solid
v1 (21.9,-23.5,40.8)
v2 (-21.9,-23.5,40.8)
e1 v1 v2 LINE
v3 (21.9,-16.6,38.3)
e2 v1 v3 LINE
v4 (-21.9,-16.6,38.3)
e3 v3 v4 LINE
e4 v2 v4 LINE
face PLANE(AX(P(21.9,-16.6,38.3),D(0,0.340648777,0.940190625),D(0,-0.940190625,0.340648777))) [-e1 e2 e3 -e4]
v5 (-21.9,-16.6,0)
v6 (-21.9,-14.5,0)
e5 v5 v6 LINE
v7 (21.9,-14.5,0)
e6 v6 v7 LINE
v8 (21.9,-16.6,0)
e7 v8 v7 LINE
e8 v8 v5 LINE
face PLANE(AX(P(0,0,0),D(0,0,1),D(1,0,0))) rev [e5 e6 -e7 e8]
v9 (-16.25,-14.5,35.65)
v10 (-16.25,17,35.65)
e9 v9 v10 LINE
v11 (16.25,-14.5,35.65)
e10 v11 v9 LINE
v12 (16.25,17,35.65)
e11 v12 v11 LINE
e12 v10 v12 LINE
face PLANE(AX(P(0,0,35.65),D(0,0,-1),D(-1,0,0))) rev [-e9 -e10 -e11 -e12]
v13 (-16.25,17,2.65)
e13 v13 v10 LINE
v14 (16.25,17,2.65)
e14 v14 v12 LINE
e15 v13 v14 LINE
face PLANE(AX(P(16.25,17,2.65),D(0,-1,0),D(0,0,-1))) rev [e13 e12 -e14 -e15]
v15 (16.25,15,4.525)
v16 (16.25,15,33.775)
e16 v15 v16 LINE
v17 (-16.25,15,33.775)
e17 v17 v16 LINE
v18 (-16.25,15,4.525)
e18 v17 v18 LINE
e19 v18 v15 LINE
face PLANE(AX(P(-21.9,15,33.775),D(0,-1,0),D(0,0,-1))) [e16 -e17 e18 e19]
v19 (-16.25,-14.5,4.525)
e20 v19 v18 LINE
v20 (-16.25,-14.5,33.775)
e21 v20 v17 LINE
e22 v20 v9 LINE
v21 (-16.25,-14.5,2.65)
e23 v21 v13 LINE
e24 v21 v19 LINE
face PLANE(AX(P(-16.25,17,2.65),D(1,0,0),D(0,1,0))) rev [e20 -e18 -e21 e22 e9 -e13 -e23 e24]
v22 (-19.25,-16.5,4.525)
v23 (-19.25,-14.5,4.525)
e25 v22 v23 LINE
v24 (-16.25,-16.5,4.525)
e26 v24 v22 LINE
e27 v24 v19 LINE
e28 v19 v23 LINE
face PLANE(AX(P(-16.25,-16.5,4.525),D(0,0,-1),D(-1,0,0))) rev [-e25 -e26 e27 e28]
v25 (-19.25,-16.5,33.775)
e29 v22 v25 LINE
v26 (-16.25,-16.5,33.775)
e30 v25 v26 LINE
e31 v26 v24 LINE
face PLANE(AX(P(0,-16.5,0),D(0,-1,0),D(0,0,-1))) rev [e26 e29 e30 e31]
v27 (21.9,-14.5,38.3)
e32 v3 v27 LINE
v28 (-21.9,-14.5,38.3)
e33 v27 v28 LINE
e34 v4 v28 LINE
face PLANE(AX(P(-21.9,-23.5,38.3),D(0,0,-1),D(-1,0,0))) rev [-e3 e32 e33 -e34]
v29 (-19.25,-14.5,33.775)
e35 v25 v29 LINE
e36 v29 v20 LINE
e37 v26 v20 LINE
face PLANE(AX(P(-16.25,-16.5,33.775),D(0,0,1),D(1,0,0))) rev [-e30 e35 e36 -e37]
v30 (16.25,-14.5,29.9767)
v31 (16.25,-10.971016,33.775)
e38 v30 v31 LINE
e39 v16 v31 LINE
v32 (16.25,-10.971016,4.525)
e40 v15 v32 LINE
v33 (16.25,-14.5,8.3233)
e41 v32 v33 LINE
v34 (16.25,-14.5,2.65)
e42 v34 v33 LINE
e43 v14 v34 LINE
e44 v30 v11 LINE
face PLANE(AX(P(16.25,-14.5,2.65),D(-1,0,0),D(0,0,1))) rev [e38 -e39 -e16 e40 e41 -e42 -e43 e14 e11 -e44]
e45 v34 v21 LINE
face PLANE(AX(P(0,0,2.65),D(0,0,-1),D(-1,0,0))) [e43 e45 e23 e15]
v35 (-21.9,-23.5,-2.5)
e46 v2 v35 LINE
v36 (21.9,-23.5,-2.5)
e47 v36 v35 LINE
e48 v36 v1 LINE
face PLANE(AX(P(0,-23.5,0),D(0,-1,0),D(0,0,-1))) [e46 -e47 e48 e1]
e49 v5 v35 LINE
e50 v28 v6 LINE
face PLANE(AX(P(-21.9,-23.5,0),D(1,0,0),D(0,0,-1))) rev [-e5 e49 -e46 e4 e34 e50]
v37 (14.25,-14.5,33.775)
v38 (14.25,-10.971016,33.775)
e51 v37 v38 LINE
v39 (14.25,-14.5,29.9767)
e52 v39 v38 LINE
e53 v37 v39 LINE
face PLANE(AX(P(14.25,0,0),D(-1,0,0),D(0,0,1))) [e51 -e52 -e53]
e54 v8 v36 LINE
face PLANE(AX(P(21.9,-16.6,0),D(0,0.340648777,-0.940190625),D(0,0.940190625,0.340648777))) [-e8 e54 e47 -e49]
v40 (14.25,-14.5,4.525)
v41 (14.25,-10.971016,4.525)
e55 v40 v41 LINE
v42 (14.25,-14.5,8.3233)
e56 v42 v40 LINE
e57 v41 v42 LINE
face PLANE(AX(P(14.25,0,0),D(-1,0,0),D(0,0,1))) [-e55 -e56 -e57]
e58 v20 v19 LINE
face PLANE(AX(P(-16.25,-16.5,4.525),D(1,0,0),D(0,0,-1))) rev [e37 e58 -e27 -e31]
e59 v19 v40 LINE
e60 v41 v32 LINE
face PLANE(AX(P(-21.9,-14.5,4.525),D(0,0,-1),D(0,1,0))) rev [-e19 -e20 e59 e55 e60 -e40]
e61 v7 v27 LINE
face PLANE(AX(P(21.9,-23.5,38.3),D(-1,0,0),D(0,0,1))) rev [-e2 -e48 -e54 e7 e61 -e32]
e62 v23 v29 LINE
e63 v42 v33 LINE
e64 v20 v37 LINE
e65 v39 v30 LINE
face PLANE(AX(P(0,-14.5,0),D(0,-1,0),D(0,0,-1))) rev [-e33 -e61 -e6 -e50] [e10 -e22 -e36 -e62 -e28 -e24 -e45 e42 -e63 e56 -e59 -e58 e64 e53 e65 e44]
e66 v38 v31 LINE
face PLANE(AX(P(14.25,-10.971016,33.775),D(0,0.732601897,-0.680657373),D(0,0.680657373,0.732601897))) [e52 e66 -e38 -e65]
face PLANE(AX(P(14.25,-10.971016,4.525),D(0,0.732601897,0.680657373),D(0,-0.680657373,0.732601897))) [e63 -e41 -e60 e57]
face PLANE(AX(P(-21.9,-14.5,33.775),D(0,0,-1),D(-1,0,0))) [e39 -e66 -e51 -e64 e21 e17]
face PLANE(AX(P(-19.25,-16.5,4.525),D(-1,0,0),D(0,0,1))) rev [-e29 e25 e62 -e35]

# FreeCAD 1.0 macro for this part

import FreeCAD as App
import Part
import Sketcher

V = App.Vector

doc = App.newDocument("Part")
params = doc.addObject("Spreadsheet::Sheet", "Params")
for row, (alias, value) in enumerate([
    ("sketch1_diameter", "3.5 mm"),
    ("sketch1_width", "30 mm"),
    ("sketch1_height", "29 mm"),
    ("pad1_length", "2 mm"),
    ("sketch2_width", "43.8 mm"),
    ("sketch2_height", "38.3 mm"),
    ("pad2_length", "9 mm"),
    ("sketch3_width", "6.9 mm"),
    ("sketch3_height", "2.5 mm"),
    ("pad3_length", "43.8 mm"),
    ("sketch4_width", "29 mm"),
    ("sketch4_height", "2 mm"),
    ("pocket1_length", "53 mm"),
    ("sketch5_width", "32.5 mm"),
    ("sketch5_height", "31.5 mm"),
    ("pad4_length", "2 mm"),
    ("pad4_length2", "31 mm"),
    ("sketch6_width", "29.5 mm"),
    ("sketch6_height", "29.25 mm"),
    ("pad5_length", "2 mm"),
    ("sketch8_width", "3 mm"),
    ("sketch8_height", "29.25 mm"),
    ("pocket3_length", "2 mm"),
], start=1):
    params.set(f"A{row}", alias)
    params.set(f"B{row}", "=" + value)
    params.setAlias(f"B{row}", alias)

body = doc.addObject("PartDesign::Body", "Body")

# Sketch on XY plane
sketch1 = body.newObject("Sketcher::SketchObject", "Sketch")
sketch1.AttachmentSupport = (doc.getObject("XY_Plane"), [""])
sketch1.MapMode = "FlatFace"
sketch1.addGeometry(Part.LineSegment(V(-15, 14.5, 0), V(-15, -14.5, 0)), False)
sketch1.addGeometry(Part.LineSegment(V(-15, -14.5, 0), V(15, -14.5, 0)), False)
sketch1.addGeometry(Part.LineSegment(V(15, -14.5, 0), V(15, 14.5, 0)), False)
sketch1.addGeometry(Part.LineSegment(V(15, 14.5, 0), V(-15, 14.5, 0)), False)
sketch1.addGeometry(Part.Circle(V(-8.2, -8.4, 0), V(0, 0, 1), 1.8), False)
sketch1.addGeometry(Part.Circle(V(8.4, -8.2, 0), V(0, 0, 1), 1.8), False)
sketch1.addGeometry(Part.Circle(V(-8.4, 8.2, 0), V(0, 0, 1), 1.8), False)
sketch1.addGeometry(Part.Circle(V(8.2, 8.4, 0), V(0, 0, 1), 1.8), False)
sketch1.addConstraint(Sketcher.Constraint("Coincident", 0, 2, 1, 1))
sketch1.addConstraint(Sketcher.Constraint("Coincident", 1, 2, 2, 1))
sketch1.addConstraint(Sketcher.Constraint("Coincident", 2, 2, 3, 1))
sketch1.addConstraint(Sketcher.Constraint("Coincident", 3, 2, 0, 1))
sketch1.addConstraint(Sketcher.Constraint("Vertical", 0))
sketch1.addConstraint(Sketcher.Constraint("Horizontal", 1))
sketch1.addConstraint(Sketcher.Constraint("Vertical", 2))
sketch1.addConstraint(Sketcher.Constraint("Horizontal", 3))
sketch1.addConstraint(Sketcher.Constraint("Equal", 4, 5))
sketch1.addConstraint(Sketcher.Constraint("Equal", 5, 6))
sketch1.addConstraint(Sketcher.Constraint("Equal", 6, 7))
sketch1.addConstraint(Sketcher.Constraint("Symmetric", 5, 3, 6, 3, -1, 1))
sketch1.addConstraint(Sketcher.Constraint("Symmetric", 4, 3, 7, 3, -1, 1))
sketch1.addConstraint(Sketcher.Constraint("Symmetric", 0, 2, 2, 2, -1, 1))
sketch1.addConstraint(Sketcher.Constraint("Diameter", 4, 3.5))
sketch1.addConstraint(Sketcher.Constraint("DistanceX", 1, 1, 1, 2, 30.0))
sketch1.addConstraint(Sketcher.Constraint("DistanceY", 0, 2, 0, 1, 29.0))
sketch1.addConstraint(Sketcher.Constraint("DistanceX", 6, 3, 5, 3, 16.9))
sketch1.addConstraint(Sketcher.Constraint("DistanceY", 4, 3, 7, 3, 16.9))
sketch1.addConstraint(Sketcher.Constraint("DistanceX", 4, 3, -1, 1, 8.168333))
sketch1.addConstraint(Sketcher.Constraint("DistanceY", 5, 3, -1, 1, 8.168333))
sketch1.setExpression("Constraints[14]", "Params.sketch1_diameter")
sketch1.setExpression("Constraints[15]", "Params.sketch1_width")
sketch1.setExpression("Constraints[16]", "Params.sketch1_height")
pad1 = body.newObject("PartDesign::Pad", "Pad")
pad1.Profile = sketch1
pad1.setExpression("Length", "Params.pad1_length")

# Sketch on XZ plane
sketch2 = body.newObject("Sketcher::SketchObject", "Sketch001")
sketch2.AttachmentSupport = (doc.getObject("XZ_Plane"), [""])
sketch2.MapMode = "FlatFace"
sketch2.AttachmentOffset = App.Placement(V(0, 0, 14.5), App.Rotation())
sketch2.addGeometry(Part.LineSegment(V(-22, 38, 0), V(-22, 0, 0)), False)
sketch2.addGeometry(Part.LineSegment(V(-22, 0, 0), V(22, 0, 0)), False)
sketch2.addGeometry(Part.LineSegment(V(22, 0, 0), V(22, 38, 0)), False)
sketch2.addGeometry(Part.LineSegment(V(22, 38, 0), V(-22, 38, 0)), False)
sketch2.addConstraint(Sketcher.Constraint("Coincident", 0, 2, 1, 1))
sketch2.addConstraint(Sketcher.Constraint("Coincident", 1, 2, 2, 1))
sketch2.addConstraint(Sketcher.Constraint("Coincident", 2, 2, 3, 1))
sketch2.addConstraint(Sketcher.Constraint("Coincident", 3, 2, 0, 1))
sketch2.addConstraint(Sketcher.Constraint("Vertical", 0))
sketch2.addConstraint(Sketcher.Constraint("Horizontal", 1))
sketch2.addConstraint(Sketcher.Constraint("Vertical", 2))
sketch2.addConstraint(Sketcher.Constraint("Horizontal", 3))
sketch2.addConstraint(Sketcher.Constraint("Symmetric", 0, 2, 1, 2, -1, 1))
sketch2.addConstraint(Sketcher.Constraint("DistanceX", 1, 1, 1, 2, 43.8))
sketch2.addConstraint(Sketcher.Constraint("DistanceY", 0, 2, 0, 1, 38.3))
sketch2.setExpression("Constraints[9]", "Params.sketch2_width")
sketch2.setExpression("Constraints[10]", "Params.sketch2_height")
pad2 = body.newObject("PartDesign::Pad", "Pad001")
pad2.Profile = sketch2
pad2.setExpression("Length", "Params.pad2_length")

# Sketch on YZ plane
sketch3 = body.newObject("Sketcher::SketchObject", "Sketch002")
sketch3.AttachmentSupport = (doc.getObject("YZ_Plane"), [""])
sketch3.MapMode = "FlatFace"
sketch3.AttachmentOffset = App.Placement(V(0, 0, -21.9), App.Rotation())
sketch3.addGeometry(Part.LineSegment(V(-23.5, -2.5, 0), V(-23.5, 0, 0)), False)
sketch3.addGeometry(Part.LineSegment(V(-23.5, 0, 0), V(-16.6, 0, 0)), False)
sketch3.addGeometry(Part.LineSegment(V(-16.6, 0, 0), V(-23.5, -2.5, 0)), False)
sketch3.addGeometry(Part.LineSegment(V(-23.5, 38.3, 0), V(-23.5, 40.8, 0)), False)
sketch3.addGeometry(Part.LineSegment(V(-23.5, 40.8, 0), V(-16.6, 38.3, 0)), False)
sketch3.addGeometry(Part.LineSegment(V(-16.6, 38.3, 0), V(-23.5, 38.3, 0)), False)
sketch3.addConstraint(Sketcher.Constraint("Coincident", 0, 2, 1, 1))
sketch3.addConstraint(Sketcher.Constraint("Coincident", 1, 2, 2, 1))
sketch3.addConstraint(Sketcher.Constraint("Coincident", 2, 2, 0, 1))
sketch3.addConstraint(Sketcher.Constraint("Coincident", 3, 2, 4, 1))
sketch3.addConstraint(Sketcher.Constraint("Coincident", 4, 2, 5, 1))
sketch3.addConstraint(Sketcher.Constraint("Coincident", 5, 2, 3, 1))
sketch3.addConstraint(Sketcher.Constraint("Vertical", 0))
sketch3.addConstraint(Sketcher.Constraint("Horizontal", 1))
sketch3.addConstraint(Sketcher.Constraint("Vertical", 3))
sketch3.addConstraint(Sketcher.Constraint("Horizontal", 5))
sketch3.addConstraint(Sketcher.Constraint("PointOnObject", 0, 2, -1))
sketch3.addConstraint(Sketcher.Constraint("Vertical", 2, 2, 3, 2))
sketch3.addConstraint(Sketcher.Constraint("Vertical", 1, 2, 4, 2))
sketch3.addConstraint(Sketcher.Constraint("Equal", 0, 3))
sketch3.addConstraint(Sketcher.Constraint("DistanceX", 1, 1, 1, 2, 6.9))
sketch3.addConstraint(Sketcher.Constraint("DistanceY", 0, 1, 0, 2, 2.5))
sketch3.addConstraint(Sketcher.Constraint("DistanceX", 0, 2, -1, 1, 23.5))
sketch3.addConstraint(Sketcher.Constraint("DistanceY", -1, 1, 3, 2, 40.8))
sketch3.setExpression("Constraints[14]", "Params.sketch3_width")
sketch3.setExpression("Constraints[15]", "Params.sketch3_height")
pad3 = body.newObject("PartDesign::Pad", "Pad002")
pad3.Profile = sketch3
pad3.setExpression("Length", "Params.pad3_length")

# Sketch on YZ plane
sketch4 = body.newObject("Sketcher::SketchObject", "Sketch003")
sketch4.AttachmentSupport = (doc.getObject("YZ_Plane"), [""])
sketch4.MapMode = "FlatFace"
sketch4.addGeometry(Part.LineSegment(V(14.5, 2, 0), V(-14.5, 2, 0)), False)
sketch4.addGeometry(Part.LineSegment(V(-14.5, 2, 0), V(-14.5, 0, 0)), False)
sketch4.addGeometry(Part.LineSegment(V(-14.5, 0, 0), V(14.5, 0, 0)), False)
sketch4.addGeometry(Part.LineSegment(V(14.5, 0, 0), V(14.5, 2, 0)), False)
sketch4.addConstraint(Sketcher.Constraint("Coincident", 0, 2, 1, 1))
sketch4.addConstraint(Sketcher.Constraint("Coincident", 1, 2, 2, 1))
sketch4.addConstraint(Sketcher.Constraint("Coincident", 2, 2, 3, 1))
sketch4.addConstraint(Sketcher.Constraint("Coincident", 3, 2, 0, 1))
sketch4.addConstraint(Sketcher.Constraint("Horizontal", 0))
sketch4.addConstraint(Sketcher.Constraint("Vertical", 1))
sketch4.addConstraint(Sketcher.Constraint("Horizontal", 2))
sketch4.addConstraint(Sketcher.Constraint("Vertical", 3))
sketch4.addConstraint(Sketcher.Constraint("Symmetric", 1, 2, 2, 2, -1, 1))
sketch4.addConstraint(Sketcher.Constraint("DistanceX", 0, 2, 0, 1, 29.0))
sketch4.addConstraint(Sketcher.Constraint("DistanceY", 1, 2, 1, 1, 2.0))
sketch4.setExpression("Constraints[9]", "Params.sketch4_width")
sketch4.setExpression("Constraints[10]", "Params.sketch4_height")
pocket1 = body.newObject("PartDesign::Pocket", "Pocket")
pocket1.Profile = sketch4
pocket1.setExpression("Length", "Params.pocket1_length")
pocket1.Midplane = True

# Sketch on XY plane
sketch5 = body.newObject("Sketcher::SketchObject", "Sketch004")
sketch5.AttachmentSupport = (doc.getObject("XY_Plane"), [""])
sketch5.MapMode = "FlatFace"
sketch5.AttachmentOffset = App.Placement(V(0, 0, 4.65), App.Rotation())
sketch5.addGeometry(Part.LineSegment(V(16, 17, 0), V(16, -14, 0)), False)
sketch5.addGeometry(Part.LineSegment(V(16, -14, 0), V(-16, -14, 0)), False)
sketch5.addGeometry(Part.LineSegment(V(-16, -14, 0), V(-16, 17, 0)), False)
sketch5.addGeometry(Part.LineSegment(V(-16, 17, 0), V(16, 17, 0)), False)
sketch5.addConstraint(Sketcher.Constraint("Coincident", 0, 2, 1, 1))
sketch5.addConstraint(Sketcher.Constraint("Coincident", 1, 2, 2, 1))
sketch5.addConstraint(Sketcher.Constraint("Coincident", 2, 2, 3, 1))
sketch5.addConstraint(Sketcher.Constraint("Coincident", 3, 2, 0, 1))
sketch5.addConstraint(Sketcher.Constraint("Vertical", 0))
sketch5.addConstraint(Sketcher.Constraint("Horizontal", 1))
sketch5.addConstraint(Sketcher.Constraint("Vertical", 2))
sketch5.addConstraint(Sketcher.Constraint("Horizontal", 3))
sketch5.addConstraint(Sketcher.Constraint("DistanceX", 1, 2, 1, 1, 32.5))
sketch5.addConstraint(Sketcher.Constraint("DistanceY", 0, 2, 0, 1, 31.5))
sketch5.addConstraint(Sketcher.Constraint("DistanceY", -1, 1, 2, 2, 17.0))
sketch5.addConstraint(Sketcher.Constraint("DistanceX", -1, 1, 0, 2, 16.25))
sketch5.setExpression("Constraints[8]", "Params.sketch5_width")
sketch5.setExpression("Constraints[9]", "Params.sketch5_height")
pad4 = body.newObject("PartDesign::Pad", "Pad003")
pad4.Profile = sketch5
pad4.Type = "TwoLengths"
pad4.setExpression("Length", "Params.pad4_length")
pad4.setExpression("Length2", "Params.pad4_length2")
pad4.Reversed = True

# Sketch on YZ plane
sketch6 = body.newObject("Sketcher::SketchObject", "Sketch005")
sketch6.AttachmentSupport = (doc.getObject("YZ_Plane"), [""])
sketch6.MapMode = "FlatFace"
sketch6.addGeometry(Part.LineSegment(V(15, 34, 0), V(-14, 34, 0)), False)
sketch6.addGeometry(Part.LineSegment(V(-14, 34, 0), V(-14, 5, 0)), False)
sketch6.addGeometry(Part.LineSegment(V(-14, 5, 0), V(15, 5, 0)), False)
sketch6.addGeometry(Part.LineSegment(V(15, 5, 0), V(15, 34, 0)), False)
sketch6.addConstraint(Sketcher.Constraint("Coincident", 0, 2, 1, 1))
sketch6.addConstraint(Sketcher.Constraint("Coincident", 1, 2, 2, 1))
sketch6.addConstraint(Sketcher.Constraint("Coincident", 2, 2, 3, 1))
sketch6.addConstraint(Sketcher.Constraint("Coincident", 3, 2, 0, 1))
sketch6.addConstraint(Sketcher.Constraint("Horizontal", 0))
sketch6.addConstraint(Sketcher.Constraint("Vertical", 1))
sketch6.addConstraint(Sketcher.Constraint("Horizontal", 2))
sketch6.addConstraint(Sketcher.Constraint("Vertical", 3))
sketch6.addConstraint(Sketcher.Constraint("DistanceX", 0, 2, 0, 1, 29.5))
sketch6.addConstraint(Sketcher.Constraint("DistanceX", -1, 1, 2, 2, 15.0))
sketch6.addConstraint(Sketcher.Constraint("DistanceY", 1, 2, 1, 1, 29.25))
sketch6.addConstraint(Sketcher.Constraint("DistanceY", -1, 1, 0, 2, 33.775))
sketch6.setExpression("Constraints[8]", "Params.sketch6_width")
sketch6.setExpression("Constraints[10]", "Params.sketch6_height")
pocket2 = body.newObject("PartDesign::Pocket", "Pocket001")
pocket2.Profile = sketch6
pocket2.Type = "ThroughAll"
pocket2.Midplane = True

# Sketch on YZ plane
sketch7 = body.newObject("Sketcher::SketchObject", "Sketch006")
sketch7.AttachmentSupport = (doc.getObject("YZ_Plane"), [""])
sketch7.MapMode = "FlatFace"
sketch7.AttachmentOffset = App.Placement(V(0, 0, 16.25), App.Rotation())
sketch7.addGeometry(Part.LineSegment(V(-11, 33.8, 0), V(-11, 35.6, 0)), False)
sketch7.addGeometry(Part.LineSegment(V(-11, 35.6, 0), V(-14.5, 35.6, 0)), False)
sketch7.addGeometry(Part.LineSegment(V(-14.5, 35.6, 0), V(-14.5, 30, 0)), False)
sketch7.addGeometry(Part.LineSegment(V(-14.5, 30, 0), V(-11, 33.8, 0)), False)
sketch7.addGeometry(Part.LineSegment(V(-11, 4.5, 0), V(-14.5, 8.3, 0)), False)
sketch7.addGeometry(Part.LineSegment(V(-14.5, 8.3, 0), V(-14.5, 2.6, 0)), False)
sketch7.addGeometry(Part.LineSegment(V(-14.5, 2.6, 0), V(-11, 2.6, 0)), False)
sketch7.addGeometry(Part.LineSegment(V(-11, 2.6, 0), V(-11, 4.5, 0)), False)
sketch7.addConstraint(Sketcher.Constraint("Coincident", 0, 2, 1, 1))
sketch7.addConstraint(Sketcher.Constraint("Coincident", 1, 2, 2, 1))
sketch7.addConstraint(Sketcher.Constraint("Coincident", 2, 2, 3, 1))
sketch7.addConstraint(Sketcher.Constraint("Coincident", 3, 2, 0, 1))
sketch7.addConstraint(Sketcher.Constraint("Coincident", 4, 2, 5, 1))
sketch7.addConstraint(Sketcher.Constraint("Coincident", 5, 2, 6, 1))
sketch7.addConstraint(Sketcher.Constraint("Coincident", 6, 2, 7, 1))
sketch7.addConstraint(Sketcher.Constraint("Coincident", 7, 2, 4, 1))
sketch7.addConstraint(Sketcher.Constraint("Vertical", 0))
sketch7.addConstraint(Sketcher.Constraint("Horizontal", 1))
sketch7.addConstraint(Sketcher.Constraint("Vertical", 2))
sketch7.addConstraint(Sketcher.Constraint("Vertical", 5))
sketch7.addConstraint(Sketcher.Constraint("Horizontal", 6))
sketch7.addConstraint(Sketcher.Constraint("Vertical", 7))
sketch7.addConstraint(Sketcher.Constraint("Vertical", 2, 2, 4, 2))
sketch7.addConstraint(Sketcher.Constraint("Vertical", 3, 2, 6, 2))
sketch7.addConstraint(Sketcher.Constraint("Equal", 2, 5))
sketch7.addConstraint(Sketcher.Constraint("Equal", 0, 7))
sketch7.addConstraint(Sketcher.Constraint("DistanceY", 5, 2, 1, 2, 33.0))
sketch7.addConstraint(Sketcher.Constraint("DistanceX", 1, 2, -1, 1, 14.5))
sketch7.addConstraint(Sketcher.Constraint("DistanceY", 0, 1, 0, 2, 1.875))
sketch7.addConstraint(Sketcher.Constraint("DistanceY", -1, 1, 0, 2, 35.65))
sketch7.addConstraint(Sketcher.Constraint("DistanceY", 2, 2, 2, 1, 5.6733))
sketch7.addConstraint(Sketcher.Constraint("Distance", 3, 5.184671))
pad5 = body.newObject("PartDesign::Pad", "Pad004")
pad5.Profile = sketch7
pad5.setExpression("Length", "Params.pad5_length")
pad5.Reversed = True

# Sketch on XZ plane
sketch8 = body.newObject("Sketcher::SketchObject", "Sketch007")
sketch8.AttachmentSupport = (doc.getObject("XZ_Plane"), [""])
sketch8.MapMode = "FlatFace"
sketch8.AttachmentOffset = App.Placement(V(0, 0, 14.5), App.Rotation())
sketch8.addGeometry(Part.LineSegment(V(-19.2, 4.5, 0), V(-19.2, 33.8, 0)), False)
sketch8.addGeometry(Part.LineSegment(V(-19.2, 33.8, 0), V(-16.2, 33.8, 0)), False)
sketch8.addGeometry(Part.LineSegment(V(-16.2, 33.8, 0), V(-16.2, 4.5, 0)), False)
sketch8.addGeometry(Part.LineSegment(V(-16.2, 4.5, 0), V(-19.2, 4.5, 0)), False)
sketch8.addConstraint(Sketcher.Constraint("Coincident", 0, 2, 1, 1))
sketch8.addConstraint(Sketcher.Constraint("Coincident", 1, 2, 2, 1))
sketch8.addConstraint(Sketcher.Constraint("Coincident", 2, 2, 3, 1))
sketch8.addConstraint(Sketcher.Constraint("Coincident", 3, 2, 0, 1))
sketch8.addConstraint(Sketcher.Constraint("Vertical", 0))
sketch8.addConstraint(Sketcher.Constraint("Horizontal", 1))
sketch8.addConstraint(Sketcher.Constraint("Vertical", 2))
sketch8.addConstraint(Sketcher.Constraint("Horizontal", 3))
sketch8.addConstraint(Sketcher.Constraint("DistanceX", 1, 1, 1, 2, 3.0))
sketch8.addConstraint(Sketcher.Constraint("DistanceY", 0, 1, 0, 2, 29.25))
sketch8.addConstraint(Sketcher.Constraint("DistanceX", 0, 2, -1, 1, 19.25))
sketch8.addConstraint(Sketcher.Constraint("DistanceY", -1, 1, 0, 2, 33.775))
sketch8.setExpression("Constraints[8]", "Params.sketch8_width")
sketch8.setExpression("Constraints[9]", "Params.sketch8_height")
pocket3 = body.newObject("PartDesign::Pocket", "Pocket002")
pocket3.Profile = sketch8
pocket3.setExpression("Length", "Params.pocket3_length")
pocket3.Reversed = True

doc.recompute()
